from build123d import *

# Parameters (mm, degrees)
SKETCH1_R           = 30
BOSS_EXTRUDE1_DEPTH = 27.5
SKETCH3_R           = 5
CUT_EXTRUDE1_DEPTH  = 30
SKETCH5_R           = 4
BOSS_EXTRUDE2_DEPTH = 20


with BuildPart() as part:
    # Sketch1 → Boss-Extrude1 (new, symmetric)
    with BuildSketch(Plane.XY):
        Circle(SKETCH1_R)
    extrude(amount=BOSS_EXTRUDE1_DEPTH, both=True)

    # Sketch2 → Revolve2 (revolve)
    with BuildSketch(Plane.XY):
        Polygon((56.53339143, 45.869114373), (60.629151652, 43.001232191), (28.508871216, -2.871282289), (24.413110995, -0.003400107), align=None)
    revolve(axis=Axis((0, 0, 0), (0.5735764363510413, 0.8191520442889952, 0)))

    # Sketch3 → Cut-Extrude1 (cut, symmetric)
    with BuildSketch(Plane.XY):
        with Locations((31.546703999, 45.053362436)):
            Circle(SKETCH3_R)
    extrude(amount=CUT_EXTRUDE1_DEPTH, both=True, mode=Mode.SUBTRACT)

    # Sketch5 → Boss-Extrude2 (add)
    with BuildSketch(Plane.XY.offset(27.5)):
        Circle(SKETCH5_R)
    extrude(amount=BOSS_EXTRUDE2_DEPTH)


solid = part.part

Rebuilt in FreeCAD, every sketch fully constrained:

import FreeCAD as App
import Part
import Sketcher
Q = App.Units.Quantity

doc = App.newDocument("Part")
params = doc.addObject("Spreadsheet::Sheet", "Params")
for row, (alias, value) in enumerate([
    ("sketch1_diameter", "60 mm"),
    ("pad1_length", "55 mm"),
    ("sketch2_length", "5 mm"),
    ("sketch2_length2", "56 mm"),
    ("revolution_angle", "360 deg"),
    ("sketch3_diameter", "10 mm"),
    ("pocket1_length", "60 mm"),
    ("sketch4_diameter", "8 mm"),
    ("pad2_length", "20 mm"),
], start=1):
    params.set(f"A{row}", alias)
    params.set(f"B{row}", "=" + value)
    params.setAlias(f"B{row}", alias)

body = doc.addObject("PartDesign::Body", "Body")

sketch1 = body.newObject("Sketcher::SketchObject", "Sketch")
sketch1.AttachmentSupport = (doc.getObject("XY_Plane"), [""])
sketch1.MapMode = "FlatFace"
sketch1.addGeometry(Part.Circle(App.Vector(0, 0, 0), App.Vector(0, 0, 1), 30), False)
sketch1.addConstraint(Sketcher.Constraint("Coincident", 0, 3, -1, 1))
sketch1.addConstraint(Sketcher.Constraint("Diameter", 0, 60.0))
sketch1.setExpression("Constraints[1]", "Params.sketch1_diameter")
pad1 = body.newObject("PartDesign::Pad", "Pad")
pad1.Profile = sketch1
pad1.setExpression("Length", "Params.pad1_length")
pad1.Midplane = True

sketch2 = body.newObject("Sketcher::SketchObject", "Sketch001")
sketch2.AttachmentSupport = (doc.getObject("XY_Plane"), [""])
sketch2.MapMode = "FlatFace"
sketch2.addGeometry(Part.LineSegment(App.Vector(60.6, 43, 0), App.Vector(56.5, 45.9, 0)), False)
sketch2.addGeometry(Part.LineSegment(App.Vector(56.5, 45.9, 0), App.Vector(24.4, 0, 0)), False)
sketch2.addGeometry(Part.LineSegment(App.Vector(24.4, 0, 0), App.Vector(28.5, -2.9, 0)), False)
sketch2.addGeometry(Part.LineSegment(App.Vector(28.5, -2.9, 0), App.Vector(60.6, 43, 0)), False)
sketch2.addGeometry(Part.LineSegment(App.Vector(8, 11.5, 0), App.Vector(40.2, 57.3, 0)), True)
sketch2.addConstraint(Sketcher.Constraint("Coincident", 0, 2, 1, 1))
sketch2.addConstraint(Sketcher.Constraint("Coincident", 1, 2, 2, 1))
sketch2.addConstraint(Sketcher.Constraint("Coincident", 2, 2, 3, 1))
sketch2.addConstraint(Sketcher.Constraint("Coincident", 3, 2, 0, 1))
sketch2.addConstraint(Sketcher.Constraint("Perpendicular", 0, 1))
sketch2.addConstraint(Sketcher.Constraint("Perpendicular", 1, 2))
sketch2.addConstraint(Sketcher.Constraint("Perpendicular", 2, 3))
sketch2.addConstraint(Sketcher.Constraint("Parallel", 3, 4))
sketch2.addConstraint(Sketcher.Constraint("Equal", 3, 4))
sketch2.addConstraint(Sketcher.Constraint("Angle", 0, Q("145 deg")))
sketch2.addConstraint(Sketcher.Constraint("Distance", 0, 5.0))
sketch2.addConstraint(Sketcher.Constraint("Distance", 1, 56.0))
sketch2.addConstraint(Sketcher.Constraint("DistanceY", 1, 2, -1, 1, 0.0034))
sketch2.addConstraint(Sketcher.Constraint("DistanceX", 4, 1, 2, 2, 20.478801))
sketch2.addConstraint(Sketcher.Constraint("DistanceX", -1, 1, 0, 2, 56.533391))
sketch2.addConstraint(Sketcher.Constraint("DistanceY", -1, 1, 4, 1, 11.468129))
sketch2.setExpression("Constraints[10]", "Params.sketch2_length")
sketch2.setExpression("Constraints[11]", "Params.sketch2_length2")
revolution = body.newObject("PartDesign::Revolution", "Revolution")
revolution.Profile = sketch2
revolution.ReferenceAxis = (sketch2, ["Axis0"])
revolution.setExpression("Angle", "Params.revolution_angle")

sketch3 = body.newObject("Sketcher::SketchObject", "Sketch002")
sketch3.AttachmentSupport = (doc.getObject("XY_Plane"), [""])
sketch3.MapMode = "FlatFace"
sketch3.addGeometry(Part.Circle(App.Vector(32, 45, 0), App.Vector(0, 0, 1), 5), False)
sketch3.addConstraint(Sketcher.Constraint("Diameter", 0, 10.0))
sketch3.addConstraint(Sketcher.Constraint("DistanceX", -1, 1, 0, 3, 31.546704))
sketch3.addConstraint(Sketcher.Constraint("DistanceY", -1, 1, 0, 3, 45.053362))
sketch3.setExpression("Constraints[0]", "Params.sketch3_diameter")
pocket1 = body.newObject("PartDesign::Pocket", "Pocket")
pocket1.Profile = sketch3
pocket1.setExpression("Length", "Params.pocket1_length")
pocket1.Midplane = True

sketch4 = body.newObject("Sketcher::SketchObject", "Sketch003")
sketch4.AttachmentSupport = (doc.getObject("XY_Plane"), [""])
sketch4.MapMode = "FlatFace"
sketch4.AttachmentOffset = App.Placement(App.Vector(0, 0, 27.5), App.Rotation())
sketch4.addGeometry(Part.Circle(App.Vector(0, 0, 0), App.Vector(0, 0, 1), 4), False)
sketch4.addConstraint(Sketcher.Constraint("Coincident", 0, 3, -1, 1))
sketch4.addConstraint(Sketcher.Constraint("Diameter", 0, 8.0))
sketch4.setExpression("Constraints[1]", "Params.sketch4_diameter")
pad2 = body.newObject("PartDesign::Pad", "Pad001")
pad2.Profile = sketch4
pad2.setExpression("Length", "Params.pad2_length")

doc.recompute()
